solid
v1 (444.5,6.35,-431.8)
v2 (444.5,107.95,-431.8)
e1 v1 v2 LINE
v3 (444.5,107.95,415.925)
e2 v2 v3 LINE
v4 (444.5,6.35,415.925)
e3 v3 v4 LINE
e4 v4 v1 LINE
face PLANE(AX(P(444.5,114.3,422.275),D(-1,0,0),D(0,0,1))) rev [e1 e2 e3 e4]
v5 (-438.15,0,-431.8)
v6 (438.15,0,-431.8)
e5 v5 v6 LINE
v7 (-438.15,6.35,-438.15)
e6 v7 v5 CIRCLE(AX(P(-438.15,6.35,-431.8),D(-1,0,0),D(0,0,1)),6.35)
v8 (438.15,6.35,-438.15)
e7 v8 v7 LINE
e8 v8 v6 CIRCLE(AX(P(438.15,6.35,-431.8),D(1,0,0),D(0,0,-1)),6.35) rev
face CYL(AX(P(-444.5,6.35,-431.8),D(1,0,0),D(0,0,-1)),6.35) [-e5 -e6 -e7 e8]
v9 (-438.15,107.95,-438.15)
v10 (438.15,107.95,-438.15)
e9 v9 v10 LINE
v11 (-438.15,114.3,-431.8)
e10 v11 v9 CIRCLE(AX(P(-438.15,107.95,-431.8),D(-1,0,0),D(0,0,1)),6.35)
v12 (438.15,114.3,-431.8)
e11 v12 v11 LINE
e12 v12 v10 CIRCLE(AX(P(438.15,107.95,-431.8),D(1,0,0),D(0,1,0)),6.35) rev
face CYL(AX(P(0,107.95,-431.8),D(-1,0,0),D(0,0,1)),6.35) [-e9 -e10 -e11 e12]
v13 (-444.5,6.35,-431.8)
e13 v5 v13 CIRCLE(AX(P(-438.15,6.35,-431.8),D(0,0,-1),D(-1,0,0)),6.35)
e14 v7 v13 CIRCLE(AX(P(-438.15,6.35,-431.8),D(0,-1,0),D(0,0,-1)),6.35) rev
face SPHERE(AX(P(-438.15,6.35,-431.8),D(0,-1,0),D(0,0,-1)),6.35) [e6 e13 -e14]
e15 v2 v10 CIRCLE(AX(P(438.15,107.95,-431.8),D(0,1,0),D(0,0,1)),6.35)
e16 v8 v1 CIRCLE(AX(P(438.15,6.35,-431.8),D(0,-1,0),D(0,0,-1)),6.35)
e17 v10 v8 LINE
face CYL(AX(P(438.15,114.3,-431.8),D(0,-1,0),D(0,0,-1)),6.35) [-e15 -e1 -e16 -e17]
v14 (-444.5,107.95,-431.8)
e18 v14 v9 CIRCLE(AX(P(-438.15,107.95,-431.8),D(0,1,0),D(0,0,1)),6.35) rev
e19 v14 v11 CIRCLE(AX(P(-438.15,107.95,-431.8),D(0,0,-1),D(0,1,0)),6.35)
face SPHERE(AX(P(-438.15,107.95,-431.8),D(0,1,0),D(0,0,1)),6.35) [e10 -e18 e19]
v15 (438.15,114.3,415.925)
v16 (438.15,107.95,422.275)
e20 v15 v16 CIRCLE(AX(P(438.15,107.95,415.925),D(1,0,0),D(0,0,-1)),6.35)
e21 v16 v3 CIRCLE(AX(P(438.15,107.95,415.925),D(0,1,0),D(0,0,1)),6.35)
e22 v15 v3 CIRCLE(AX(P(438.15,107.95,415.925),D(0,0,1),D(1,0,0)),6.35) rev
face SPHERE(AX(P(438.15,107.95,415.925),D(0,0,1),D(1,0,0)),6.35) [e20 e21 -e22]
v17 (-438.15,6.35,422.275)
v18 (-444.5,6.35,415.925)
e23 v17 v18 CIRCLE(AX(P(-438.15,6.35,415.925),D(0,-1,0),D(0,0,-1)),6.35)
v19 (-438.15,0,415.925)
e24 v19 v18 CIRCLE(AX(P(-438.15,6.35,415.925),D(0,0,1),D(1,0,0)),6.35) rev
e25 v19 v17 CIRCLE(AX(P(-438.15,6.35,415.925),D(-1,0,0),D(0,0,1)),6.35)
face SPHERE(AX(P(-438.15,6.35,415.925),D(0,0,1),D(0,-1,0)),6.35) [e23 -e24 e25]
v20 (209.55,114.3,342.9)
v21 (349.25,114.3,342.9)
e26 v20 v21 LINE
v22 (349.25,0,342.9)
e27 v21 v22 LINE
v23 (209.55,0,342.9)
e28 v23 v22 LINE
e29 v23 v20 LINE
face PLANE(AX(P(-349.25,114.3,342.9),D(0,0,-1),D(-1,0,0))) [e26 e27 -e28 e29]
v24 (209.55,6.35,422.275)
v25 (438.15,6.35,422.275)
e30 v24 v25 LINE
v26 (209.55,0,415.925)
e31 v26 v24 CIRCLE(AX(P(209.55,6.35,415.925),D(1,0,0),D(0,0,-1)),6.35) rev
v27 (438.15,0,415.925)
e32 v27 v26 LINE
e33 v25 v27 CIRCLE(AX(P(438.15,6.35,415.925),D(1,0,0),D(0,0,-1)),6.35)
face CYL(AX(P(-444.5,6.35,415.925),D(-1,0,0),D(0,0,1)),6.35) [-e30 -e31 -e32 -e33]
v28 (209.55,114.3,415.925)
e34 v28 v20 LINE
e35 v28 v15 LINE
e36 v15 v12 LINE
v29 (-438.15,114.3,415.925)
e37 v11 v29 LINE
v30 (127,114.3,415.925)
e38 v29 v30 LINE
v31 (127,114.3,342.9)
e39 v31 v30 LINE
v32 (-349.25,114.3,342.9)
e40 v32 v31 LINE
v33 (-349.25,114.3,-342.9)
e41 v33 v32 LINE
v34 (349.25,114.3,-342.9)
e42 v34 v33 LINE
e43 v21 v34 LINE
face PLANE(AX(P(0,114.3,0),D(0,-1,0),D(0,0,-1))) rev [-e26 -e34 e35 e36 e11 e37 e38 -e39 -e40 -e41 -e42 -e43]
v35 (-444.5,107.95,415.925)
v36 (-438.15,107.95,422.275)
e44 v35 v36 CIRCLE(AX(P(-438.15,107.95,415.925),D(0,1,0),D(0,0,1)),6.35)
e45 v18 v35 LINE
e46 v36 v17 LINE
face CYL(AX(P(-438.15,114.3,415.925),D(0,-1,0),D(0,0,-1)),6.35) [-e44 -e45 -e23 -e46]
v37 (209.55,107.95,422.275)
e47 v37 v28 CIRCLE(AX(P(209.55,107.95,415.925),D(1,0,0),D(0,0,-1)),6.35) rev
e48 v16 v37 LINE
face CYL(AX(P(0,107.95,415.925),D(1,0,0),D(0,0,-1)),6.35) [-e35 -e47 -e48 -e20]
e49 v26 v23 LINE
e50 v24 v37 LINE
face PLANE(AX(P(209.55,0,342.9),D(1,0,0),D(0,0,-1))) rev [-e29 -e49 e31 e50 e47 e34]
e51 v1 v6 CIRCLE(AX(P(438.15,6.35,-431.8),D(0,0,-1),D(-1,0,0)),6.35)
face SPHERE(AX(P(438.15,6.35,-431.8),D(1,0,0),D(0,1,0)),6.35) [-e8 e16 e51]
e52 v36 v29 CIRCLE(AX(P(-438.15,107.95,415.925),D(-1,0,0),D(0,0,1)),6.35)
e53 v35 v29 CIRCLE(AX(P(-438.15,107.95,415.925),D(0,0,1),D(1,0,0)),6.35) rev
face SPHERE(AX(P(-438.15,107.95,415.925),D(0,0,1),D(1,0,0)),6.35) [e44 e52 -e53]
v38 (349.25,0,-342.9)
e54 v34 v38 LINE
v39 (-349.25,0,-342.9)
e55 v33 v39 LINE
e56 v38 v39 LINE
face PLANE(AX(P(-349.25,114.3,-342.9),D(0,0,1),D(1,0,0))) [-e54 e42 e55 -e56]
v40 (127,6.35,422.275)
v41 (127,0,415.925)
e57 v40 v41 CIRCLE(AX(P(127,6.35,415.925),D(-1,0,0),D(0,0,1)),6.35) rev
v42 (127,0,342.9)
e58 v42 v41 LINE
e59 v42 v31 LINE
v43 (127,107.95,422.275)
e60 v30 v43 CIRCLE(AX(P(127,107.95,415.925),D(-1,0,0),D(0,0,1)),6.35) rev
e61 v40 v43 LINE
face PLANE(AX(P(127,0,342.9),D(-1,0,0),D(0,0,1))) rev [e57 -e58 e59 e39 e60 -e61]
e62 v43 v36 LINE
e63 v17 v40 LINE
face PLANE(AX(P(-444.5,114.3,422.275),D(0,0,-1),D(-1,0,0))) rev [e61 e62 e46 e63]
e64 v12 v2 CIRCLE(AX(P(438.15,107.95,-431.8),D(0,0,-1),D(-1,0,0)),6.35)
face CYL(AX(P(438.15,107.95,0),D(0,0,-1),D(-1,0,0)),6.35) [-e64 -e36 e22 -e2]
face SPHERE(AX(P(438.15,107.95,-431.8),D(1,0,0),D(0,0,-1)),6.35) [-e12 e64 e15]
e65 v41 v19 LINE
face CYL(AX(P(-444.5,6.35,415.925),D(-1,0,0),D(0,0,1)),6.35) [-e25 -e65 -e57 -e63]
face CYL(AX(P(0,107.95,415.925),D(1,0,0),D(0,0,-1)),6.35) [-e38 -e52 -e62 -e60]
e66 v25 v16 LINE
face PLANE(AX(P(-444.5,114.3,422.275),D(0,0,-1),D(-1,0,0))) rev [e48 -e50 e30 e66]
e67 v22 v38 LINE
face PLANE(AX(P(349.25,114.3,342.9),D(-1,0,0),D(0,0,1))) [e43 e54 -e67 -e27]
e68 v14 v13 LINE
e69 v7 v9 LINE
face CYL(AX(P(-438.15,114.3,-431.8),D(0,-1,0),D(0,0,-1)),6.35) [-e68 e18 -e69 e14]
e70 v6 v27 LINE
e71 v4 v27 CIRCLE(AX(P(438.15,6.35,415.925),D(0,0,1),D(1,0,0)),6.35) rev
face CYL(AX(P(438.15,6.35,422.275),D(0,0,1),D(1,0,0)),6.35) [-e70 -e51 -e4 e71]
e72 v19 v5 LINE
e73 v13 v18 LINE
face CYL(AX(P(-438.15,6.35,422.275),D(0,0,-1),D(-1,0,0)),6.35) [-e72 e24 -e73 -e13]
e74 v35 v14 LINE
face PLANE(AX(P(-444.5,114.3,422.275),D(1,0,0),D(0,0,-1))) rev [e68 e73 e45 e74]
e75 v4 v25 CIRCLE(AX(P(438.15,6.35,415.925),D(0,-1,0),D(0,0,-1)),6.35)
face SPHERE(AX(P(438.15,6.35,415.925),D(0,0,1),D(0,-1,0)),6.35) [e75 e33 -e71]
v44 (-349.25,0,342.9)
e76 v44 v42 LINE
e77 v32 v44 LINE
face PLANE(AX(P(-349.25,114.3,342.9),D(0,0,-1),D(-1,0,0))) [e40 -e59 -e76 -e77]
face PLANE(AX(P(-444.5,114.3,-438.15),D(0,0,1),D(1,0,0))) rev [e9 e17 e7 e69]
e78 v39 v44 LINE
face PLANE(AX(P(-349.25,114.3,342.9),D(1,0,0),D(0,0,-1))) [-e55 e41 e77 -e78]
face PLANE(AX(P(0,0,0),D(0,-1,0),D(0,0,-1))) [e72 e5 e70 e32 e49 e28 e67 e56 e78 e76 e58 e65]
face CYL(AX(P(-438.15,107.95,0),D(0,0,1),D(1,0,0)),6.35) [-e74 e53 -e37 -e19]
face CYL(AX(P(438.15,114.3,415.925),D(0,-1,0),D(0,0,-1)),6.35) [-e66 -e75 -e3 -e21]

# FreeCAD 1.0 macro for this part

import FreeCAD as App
import Part
import Sketcher
from FreeCAD import Vector
Q = App.Units.Quantity


def edges_at(feature, points):
    """Names of the edges that pass closest to the given points."""
    edges = feature.Shape.Edges
    near = lambda p: min(range(len(edges)), key=lambda i: edges[i].distToShape(Part.Vertex(*p))[0])
    return sorted({f"Edge{near(p) + 1}" for p in points})

doc = App.newDocument("Part")
body = doc.addObject("PartDesign::Body", "Body")

sketch1 = body.newObject("Sketcher::SketchObject", "Sketch")
sketch1.AttachmentSupport = (doc.getObject("XZ_Plane"), [""])
sketch1.MapMode = "FlatFace"
sketch1.addGeometry([
    Part.LineSegment(Vector(-444, -438, 0), Vector(-444, 422, 0)),
    Part.LineSegment(Vector(-444, 422, 0), Vector(444, 422, 0)),
    Part.LineSegment(Vector(444, 422, 0), Vector(444, -438, 0)),
    Part.LineSegment(Vector(444, -438, 0), Vector(-444, -438, 0)),
    Part.LineSegment(Vector(349, 343, 0), Vector(-349, 343, 0)),
    Part.LineSegment(Vector(-349, 343, 0), Vector(-349, -343, 0)),
    Part.LineSegment(Vector(-349, -343, 0), Vector(349, -343, 0)),
    Part.LineSegment(Vector(349, -343, 0), Vector(349, 343, 0)),
], False)
sketch1.addConstraint([
    Sketcher.Constraint("Coincident", 0, 2, 1, 1),
    Sketcher.Constraint("Coincident", 1, 2, 2, 1),
    Sketcher.Constraint("Coincident", 2, 2, 3, 1),
    Sketcher.Constraint("Coincident", 3, 2, 0, 1),
    Sketcher.Constraint("Coincident", 4, 2, 5, 1),
    Sketcher.Constraint("Coincident", 5, 2, 6, 1),
    Sketcher.Constraint("Coincident", 6, 2, 7, 1),
    Sketcher.Constraint("Coincident", 7, 2, 4, 1),
    Sketcher.Constraint("Vertical", 0),
    Sketcher.Constraint("Horizontal", 1),
    Sketcher.Constraint("Vertical", 2),
    Sketcher.Constraint("Horizontal", 3),
    Sketcher.Constraint("Horizontal", 4),
    Sketcher.Constraint("Vertical", 5),
    Sketcher.Constraint("Horizontal", 6),
    Sketcher.Constraint("Vertical", 7),
    Sketcher.Constraint("Symmetric", 4, 2, 6, 2, -1, 1),
    Sketcher.Constraint("DistanceX", 1, 1, 1, 2, Q("35 in")),
    Sketcher.Constraint("DistanceY", 5, 2, 5, 1, Q("27 in")),
    Sketcher.Constraint("DistanceX", 4, 2, 4, 1, Q("27.5 in")),
    Sketcher.Constraint("DistanceX", 0, 2, -1, 1, Q("17.5 in")),
    Sketcher.Constraint("DistanceY", 0, 1, 0, 2, Q("33.875 in")),
    Sketcher.Constraint("DistanceY", 2, 2, -1, 1, Q("17.25 in")),
])
pad1 = body.newObject("PartDesign::Pad", "Pad")
pad1.Profile = sketch1
pad1.Length = Q("4.5 in")
pad1.Reversed = True

sketch2 = body.newObject("Sketcher::SketchObject", "Sketch001")
sketch2.AttachmentSupport = (doc.getObject("XZ_Plane"), [""])
sketch2.MapMode = "FlatFace"
sketch2.AttachmentOffset = App.Placement(Vector(0, 0, -4.5 * 25.4), App.Rotation())
sketch2.addGeometry([
    Part.LineSegment(Vector(127, 343, 0), Vector(127, 422, 0)),
    Part.LineSegment(Vector(127, 422, 0), Vector(210, 422, 0)),
    Part.LineSegment(Vector(210, 422, 0), Vector(210, 343, 0)),
    Part.LineSegment(Vector(210, 343, 0), Vector(127, 343, 0)),
], False)
sketch2.addConstraint([
    Sketcher.Constraint("Coincident", 0, 2, 1, 1),
    Sketcher.Constraint("Coincident", 1, 2, 2, 1),
    Sketcher.Constraint("Coincident", 2, 2, 3, 1),
    Sketcher.Constraint("Coincident", 3, 2, 0, 1),
    Sketcher.Constraint("Vertical", 0),
    Sketcher.Constraint("Horizontal", 1),
    Sketcher.Constraint("Vertical", 2),
    Sketcher.Constraint("Horizontal", 3),
    Sketcher.Constraint("DistanceX", -1, 1, 0, 2, Q("5 in")),
    Sketcher.Constraint("DistanceX", 1, 1, 1, 2, Q("3.25 in")),
    Sketcher.Constraint("DistanceY", -1, 1, 2, 2, Q("13.5 in")),
    Sketcher.Constraint("DistanceY", 0, 1, 0, 2, Q("3.125 in")),
])
pocket1 = body.newObject("PartDesign::Pocket", "Pocket")
pocket1.Profile = sketch2
pocket1.Type = "ThroughAll"
pocket1.Reversed = True
doc.recompute()

fillet = body.newObject("PartDesign::Fillet", "Fillet")
fillet.Base = (pocket1, edges_at(pocket1, [
    (444.5, 114.3, -7.938),
    (0, 114.3, -438.15),
    (327.025, 0, 422.275),
    (327.025, 114.3, 422.275),
    (-444.5, 114.3, -7.938),
    (0, 0, -438.15),
    (444.5, 0, -7.938),
    (-158.75, 0, 422.275),
    (-444.5, 0, -7.938),
    (-444.5, 57.15, -438.15),
    (444.5, 57.15, -438.15),
    (444.5, 57.15, 422.275),
    (-444.5, 57.15, 422.275),
    (-158.75, 114.3, 422.275),
]))
fillet.Radius = Q("0.25 in")

doc.recompute()
